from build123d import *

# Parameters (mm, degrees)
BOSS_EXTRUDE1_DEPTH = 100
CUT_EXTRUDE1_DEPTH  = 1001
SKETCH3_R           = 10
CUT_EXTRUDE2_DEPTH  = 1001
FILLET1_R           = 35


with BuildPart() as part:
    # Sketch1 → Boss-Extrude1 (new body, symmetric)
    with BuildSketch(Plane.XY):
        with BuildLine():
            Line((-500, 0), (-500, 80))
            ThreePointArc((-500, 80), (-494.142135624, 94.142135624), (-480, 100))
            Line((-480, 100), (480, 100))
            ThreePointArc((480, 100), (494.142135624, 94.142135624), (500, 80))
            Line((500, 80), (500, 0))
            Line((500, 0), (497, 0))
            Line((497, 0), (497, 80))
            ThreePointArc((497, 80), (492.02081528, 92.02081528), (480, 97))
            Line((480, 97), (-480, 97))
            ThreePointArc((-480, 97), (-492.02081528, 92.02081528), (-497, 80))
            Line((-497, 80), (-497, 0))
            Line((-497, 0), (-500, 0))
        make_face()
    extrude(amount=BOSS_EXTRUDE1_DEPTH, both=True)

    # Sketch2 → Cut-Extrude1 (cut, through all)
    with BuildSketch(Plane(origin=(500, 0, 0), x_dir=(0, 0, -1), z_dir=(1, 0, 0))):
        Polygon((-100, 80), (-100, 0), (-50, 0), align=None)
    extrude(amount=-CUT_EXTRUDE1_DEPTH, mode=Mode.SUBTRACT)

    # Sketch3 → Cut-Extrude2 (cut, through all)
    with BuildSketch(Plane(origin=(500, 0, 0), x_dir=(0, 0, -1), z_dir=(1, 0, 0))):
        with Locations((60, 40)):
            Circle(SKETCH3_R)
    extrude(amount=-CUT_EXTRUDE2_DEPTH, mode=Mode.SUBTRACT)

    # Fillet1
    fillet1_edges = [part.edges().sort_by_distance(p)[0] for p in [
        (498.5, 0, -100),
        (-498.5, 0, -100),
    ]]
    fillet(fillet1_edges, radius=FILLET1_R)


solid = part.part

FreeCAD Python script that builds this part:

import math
import FreeCAD as App
import Part
import Sketcher

V = App.Vector
Q = App.Units.Quantity


def edges_at(feature, points):
    """Names of the edges that pass closest to the given points."""
    edges = feature.Shape.Edges
    near = lambda p: min(range(len(edges)), key=lambda i: edges[i].distToShape(Part.Vertex(*p))[0])
    return sorted({f"Edge{near(p) + 1}" for p in points})


def add_polygon(sketch, points):
    """Adds a closed chain of lines whose ends are joined by coincident constraints."""
    first, n = sketch.GeometryCount, len(points)
    for a, b in zip(points, points[1:] + points[:1]):
        sketch.addGeometry(Part.LineSegment(App.Vector(*a, 0), App.Vector(*b, 0)), False)
    for i in range(n):
        sketch.addConstraint(Sketcher.Constraint("Coincident", first + i, 2, first + (i + 1) % n, 1))

doc = App.newDocument("Part")
params = doc.addObject("Spreadsheet::Sheet", "Params")
for row, (alias, value) in enumerate([
    ("sketch1_radius", "17 mm"),
    ("sketch1_radius2", "20 mm"),
    ("sketch1_width", "960 mm"),
    ("sketch1_height", "80 mm"),
    ("pad1_length", "200 mm"),
    ("sketch2_width", "80 mm"),
    ("sketch2_height", "50 mm"),
    ("sketch3_diameter", "20 mm"),
    ("fillet_radius", "35 mm"),
], start=1):
    params.set(f"A{row}", alias)
    params.set(f"B{row}", "=" + value)
    params.setAlias(f"B{row}", alias)

body = doc.addObject("PartDesign::Body", "Body")

# Sketch on XY plane
sketch1 = body.newObject("Sketcher::SketchObject", "Sketch")
sketch1.AttachmentSupport = (doc.getObject("XY_Plane"), [""])
sketch1.MapMode = "FlatFace"
sketch1.addGeometry(Part.LineSegment(V(-500, 80, 0), V(-500, 0, 0)), False)
sketch1.addGeometry(Part.LineSegment(V(-500, 0, 0), V(-497, 0, 0)), False)
sketch1.addGeometry(Part.LineSegment(V(-497, 0, 0), V(-497, 80, 0)), False)
sketch1.addGeometry(Part.ArcOfCircle(Part.Circle(V(-480, 80, 0), V(0, 0, 1), 17), math.radians(90), math.radians(180)), False)
sketch1.addGeometry(Part.LineSegment(V(-480, 97, 0), V(480, 97, 0)), False)
sketch1.addGeometry(Part.ArcOfCircle(Part.Circle(V(480, 80, 0), V(0, 0, 1), 17), math.radians(0), math.radians(90)), False)
sketch1.addGeometry(Part.LineSegment(V(497, 80, 0), V(497, 0, 0)), False)
sketch1.addGeometry(Part.LineSegment(V(497, 0, 0), V(500, 0, 0)), False)
sketch1.addGeometry(Part.LineSegment(V(500, 0, 0), V(500, 80, 0)), False)
sketch1.addGeometry(Part.ArcOfCircle(Part.Circle(V(480, 80, 0), V(0, 0, 1), 20), math.radians(0), math.radians(90)), False)
sketch1.addGeometry(Part.LineSegment(V(480, 100, 0), V(-480, 100, 0)), False)
sketch1.addGeometry(Part.ArcOfCircle(Part.Circle(V(-480, 80, 0), V(0, 0, 1), 20), math.radians(90), math.radians(180)), False)
sketch1.addConstraint(Sketcher.Constraint("Coincident", 0, 2, 1, 1))
sketch1.addConstraint(Sketcher.Constraint("Coincident", 1, 2, 2, 1))
sketch1.addConstraint(Sketcher.Constraint("Tangent", 2, 2, 3, 2))
sketch1.addConstraint(Sketcher.Constraint("Tangent", 3, 1, 4, 1))
sketch1.addConstraint(Sketcher.Constraint("Tangent", 4, 2, 5, 2))
sketch1.addConstraint(Sketcher.Constraint("Tangent", 5, 1, 6, 1))
sketch1.addConstraint(Sketcher.Constraint("Coincident", 6, 2, 7, 1))
sketch1.addConstraint(Sketcher.Constraint("Coincident", 7, 2, 8, 1))
sketch1.addConstraint(Sketcher.Constraint("Tangent", 8, 2, 9, 1))
sketch1.addConstraint(Sketcher.Constraint("Tangent", 9, 2, 10, 1))
sketch1.addConstraint(Sketcher.Constraint("Tangent", 10, 2, 11, 1))
sketch1.addConstraint(Sketcher.Constraint("Tangent", 11, 2, 0, 1))
sketch1.addConstraint(Sketcher.Constraint("Vertical", 0))
sketch1.addConstraint(Sketcher.Constraint("Horizontal", 1))
sketch1.addConstraint(Sketcher.Constraint("Vertical", 2))
sketch1.addConstraint(Sketcher.Constraint("Horizontal", 4))
sketch1.addConstraint(Sketcher.Constraint("Vertical", 6))
sketch1.addConstraint(Sketcher.Constraint("Horizontal", 7))
sketch1.addConstraint(Sketcher.Constraint("Vertical", 8))
sketch1.addConstraint(Sketcher.Constraint("Horizontal", 10))
sketch1.addConstraint(Sketcher.Constraint("Coincident", 9, 3, 5, 3))
sketch1.addConstraint(Sketcher.Constraint("Coincident", 11, 3, 3, 3))
sketch1.addConstraint(Sketcher.Constraint("Equal", 3, 5))
sketch1.addConstraint(Sketcher.Constraint("Symmetric", 1, 2, 6, 2, -1, 1))
sketch1.addConstraint(Sketcher.Constraint("PointOnObject", 0, 2, -1))
sketch1.addConstraint(Sketcher.Constraint("Radius", 3, Q("17 mm")))
sketch1.addConstraint(Sketcher.Constraint("Radius", 9, Q("20 mm")))
sketch1.addConstraint(Sketcher.Constraint("DistanceX", 4, 1, 4, 2, Q("960 mm")))
sketch1.addConstraint(Sketcher.Constraint("DistanceY", 0, 2, 0, 1, Q("80 mm")))
sketch1.setExpression("Constraints[25]", "Params.sketch1_radius")
sketch1.setExpression("Constraints[26]", "Params.sketch1_radius2")
sketch1.setExpression("Constraints[27]", "Params.sketch1_width")
sketch1.setExpression("Constraints[28]", "Params.sketch1_height")
pad1 = body.newObject("PartDesign::Pad", "Pad")
pad1.Profile = sketch1
pad1.setExpression("Length", "Params.pad1_length")
pad1.Midplane = True

# Sketch on YZ plane
sketch2 = body.newObject("Sketcher::SketchObject", "Sketch001")
sketch2.AttachmentSupport = (doc.getObject("YZ_Plane"), [""])
sketch2.MapMode = "FlatFace"
sketch2.AttachmentOffset = App.Placement(V(0, 0, 500), App.Rotation())
add_polygon(sketch2, [(80, 100), (0, 100), (0, 50)])  # lines 0-2
sketch2.addConstraint(Sketcher.Constraint("Horizontal", 0))
sketch2.addConstraint(Sketcher.Constraint("Vertical", 1))
sketch2.addConstraint(Sketcher.Constraint("PointOnObject", 0, 2, -2))
sketch2.addConstraint(Sketcher.Constraint("DistanceX", 0, 2, 0, 1, Q("80 mm")))
sketch2.addConstraint(Sketcher.Constraint("DistanceY", 1, 2, 1, 1, Q("50 mm")))
sketch2.addConstraint(Sketcher.Constraint("DistanceY", -1, 1, 0, 2, Q("100 mm")))
sketch2.setExpression("Constraints[6]", "Params.sketch2_width")
sketch2.setExpression("Constraints[7]", "Params.sketch2_height")
pocket1 = body.newObject("PartDesign::Pocket", "Pocket")
pocket1.Profile = sketch2
pocket1.Type = "ThroughAll"

# Sketch on YZ plane
sketch3 = body.newObject("Sketcher::SketchObject", "Sketch002")
sketch3.AttachmentSupport = (doc.getObject("YZ_Plane"), [""])
sketch3.MapMode = "FlatFace"
sketch3.AttachmentOffset = App.Placement(V(0, 0, 500), App.Rotation())
sketch3.addGeometry(Part.Circle(V(40, -60, 0), V(0, 0, 1), 10), False)
sketch3.addConstraint(Sketcher.Constraint("Diameter", 0, Q("20 mm")))
sketch3.addConstraint(Sketcher.Constraint("DistanceX", -1, 1, 0, 3, Q("40 mm")))
sketch3.addConstraint(Sketcher.Constraint("DistanceY", 0, 3, -1, 1, Q("60 mm")))
sketch3.setExpression("Constraints[0]", "Params.sketch3_diameter")
pocket2 = body.newObject("PartDesign::Pocket", "Pocket001")
pocket2.Profile = sketch3
pocket2.Type = "ThroughAll"
doc.recompute()

fillet = body.newObject("PartDesign::Fillet", "Fillet")
fillet.Base = (pocket2, edges_at(pocket2, [(498.5, 0, -100), (-498.5, 0, -100)]))
fillet.setExpression("Radius", "Params.fillet_radius")

doc.recompute()
